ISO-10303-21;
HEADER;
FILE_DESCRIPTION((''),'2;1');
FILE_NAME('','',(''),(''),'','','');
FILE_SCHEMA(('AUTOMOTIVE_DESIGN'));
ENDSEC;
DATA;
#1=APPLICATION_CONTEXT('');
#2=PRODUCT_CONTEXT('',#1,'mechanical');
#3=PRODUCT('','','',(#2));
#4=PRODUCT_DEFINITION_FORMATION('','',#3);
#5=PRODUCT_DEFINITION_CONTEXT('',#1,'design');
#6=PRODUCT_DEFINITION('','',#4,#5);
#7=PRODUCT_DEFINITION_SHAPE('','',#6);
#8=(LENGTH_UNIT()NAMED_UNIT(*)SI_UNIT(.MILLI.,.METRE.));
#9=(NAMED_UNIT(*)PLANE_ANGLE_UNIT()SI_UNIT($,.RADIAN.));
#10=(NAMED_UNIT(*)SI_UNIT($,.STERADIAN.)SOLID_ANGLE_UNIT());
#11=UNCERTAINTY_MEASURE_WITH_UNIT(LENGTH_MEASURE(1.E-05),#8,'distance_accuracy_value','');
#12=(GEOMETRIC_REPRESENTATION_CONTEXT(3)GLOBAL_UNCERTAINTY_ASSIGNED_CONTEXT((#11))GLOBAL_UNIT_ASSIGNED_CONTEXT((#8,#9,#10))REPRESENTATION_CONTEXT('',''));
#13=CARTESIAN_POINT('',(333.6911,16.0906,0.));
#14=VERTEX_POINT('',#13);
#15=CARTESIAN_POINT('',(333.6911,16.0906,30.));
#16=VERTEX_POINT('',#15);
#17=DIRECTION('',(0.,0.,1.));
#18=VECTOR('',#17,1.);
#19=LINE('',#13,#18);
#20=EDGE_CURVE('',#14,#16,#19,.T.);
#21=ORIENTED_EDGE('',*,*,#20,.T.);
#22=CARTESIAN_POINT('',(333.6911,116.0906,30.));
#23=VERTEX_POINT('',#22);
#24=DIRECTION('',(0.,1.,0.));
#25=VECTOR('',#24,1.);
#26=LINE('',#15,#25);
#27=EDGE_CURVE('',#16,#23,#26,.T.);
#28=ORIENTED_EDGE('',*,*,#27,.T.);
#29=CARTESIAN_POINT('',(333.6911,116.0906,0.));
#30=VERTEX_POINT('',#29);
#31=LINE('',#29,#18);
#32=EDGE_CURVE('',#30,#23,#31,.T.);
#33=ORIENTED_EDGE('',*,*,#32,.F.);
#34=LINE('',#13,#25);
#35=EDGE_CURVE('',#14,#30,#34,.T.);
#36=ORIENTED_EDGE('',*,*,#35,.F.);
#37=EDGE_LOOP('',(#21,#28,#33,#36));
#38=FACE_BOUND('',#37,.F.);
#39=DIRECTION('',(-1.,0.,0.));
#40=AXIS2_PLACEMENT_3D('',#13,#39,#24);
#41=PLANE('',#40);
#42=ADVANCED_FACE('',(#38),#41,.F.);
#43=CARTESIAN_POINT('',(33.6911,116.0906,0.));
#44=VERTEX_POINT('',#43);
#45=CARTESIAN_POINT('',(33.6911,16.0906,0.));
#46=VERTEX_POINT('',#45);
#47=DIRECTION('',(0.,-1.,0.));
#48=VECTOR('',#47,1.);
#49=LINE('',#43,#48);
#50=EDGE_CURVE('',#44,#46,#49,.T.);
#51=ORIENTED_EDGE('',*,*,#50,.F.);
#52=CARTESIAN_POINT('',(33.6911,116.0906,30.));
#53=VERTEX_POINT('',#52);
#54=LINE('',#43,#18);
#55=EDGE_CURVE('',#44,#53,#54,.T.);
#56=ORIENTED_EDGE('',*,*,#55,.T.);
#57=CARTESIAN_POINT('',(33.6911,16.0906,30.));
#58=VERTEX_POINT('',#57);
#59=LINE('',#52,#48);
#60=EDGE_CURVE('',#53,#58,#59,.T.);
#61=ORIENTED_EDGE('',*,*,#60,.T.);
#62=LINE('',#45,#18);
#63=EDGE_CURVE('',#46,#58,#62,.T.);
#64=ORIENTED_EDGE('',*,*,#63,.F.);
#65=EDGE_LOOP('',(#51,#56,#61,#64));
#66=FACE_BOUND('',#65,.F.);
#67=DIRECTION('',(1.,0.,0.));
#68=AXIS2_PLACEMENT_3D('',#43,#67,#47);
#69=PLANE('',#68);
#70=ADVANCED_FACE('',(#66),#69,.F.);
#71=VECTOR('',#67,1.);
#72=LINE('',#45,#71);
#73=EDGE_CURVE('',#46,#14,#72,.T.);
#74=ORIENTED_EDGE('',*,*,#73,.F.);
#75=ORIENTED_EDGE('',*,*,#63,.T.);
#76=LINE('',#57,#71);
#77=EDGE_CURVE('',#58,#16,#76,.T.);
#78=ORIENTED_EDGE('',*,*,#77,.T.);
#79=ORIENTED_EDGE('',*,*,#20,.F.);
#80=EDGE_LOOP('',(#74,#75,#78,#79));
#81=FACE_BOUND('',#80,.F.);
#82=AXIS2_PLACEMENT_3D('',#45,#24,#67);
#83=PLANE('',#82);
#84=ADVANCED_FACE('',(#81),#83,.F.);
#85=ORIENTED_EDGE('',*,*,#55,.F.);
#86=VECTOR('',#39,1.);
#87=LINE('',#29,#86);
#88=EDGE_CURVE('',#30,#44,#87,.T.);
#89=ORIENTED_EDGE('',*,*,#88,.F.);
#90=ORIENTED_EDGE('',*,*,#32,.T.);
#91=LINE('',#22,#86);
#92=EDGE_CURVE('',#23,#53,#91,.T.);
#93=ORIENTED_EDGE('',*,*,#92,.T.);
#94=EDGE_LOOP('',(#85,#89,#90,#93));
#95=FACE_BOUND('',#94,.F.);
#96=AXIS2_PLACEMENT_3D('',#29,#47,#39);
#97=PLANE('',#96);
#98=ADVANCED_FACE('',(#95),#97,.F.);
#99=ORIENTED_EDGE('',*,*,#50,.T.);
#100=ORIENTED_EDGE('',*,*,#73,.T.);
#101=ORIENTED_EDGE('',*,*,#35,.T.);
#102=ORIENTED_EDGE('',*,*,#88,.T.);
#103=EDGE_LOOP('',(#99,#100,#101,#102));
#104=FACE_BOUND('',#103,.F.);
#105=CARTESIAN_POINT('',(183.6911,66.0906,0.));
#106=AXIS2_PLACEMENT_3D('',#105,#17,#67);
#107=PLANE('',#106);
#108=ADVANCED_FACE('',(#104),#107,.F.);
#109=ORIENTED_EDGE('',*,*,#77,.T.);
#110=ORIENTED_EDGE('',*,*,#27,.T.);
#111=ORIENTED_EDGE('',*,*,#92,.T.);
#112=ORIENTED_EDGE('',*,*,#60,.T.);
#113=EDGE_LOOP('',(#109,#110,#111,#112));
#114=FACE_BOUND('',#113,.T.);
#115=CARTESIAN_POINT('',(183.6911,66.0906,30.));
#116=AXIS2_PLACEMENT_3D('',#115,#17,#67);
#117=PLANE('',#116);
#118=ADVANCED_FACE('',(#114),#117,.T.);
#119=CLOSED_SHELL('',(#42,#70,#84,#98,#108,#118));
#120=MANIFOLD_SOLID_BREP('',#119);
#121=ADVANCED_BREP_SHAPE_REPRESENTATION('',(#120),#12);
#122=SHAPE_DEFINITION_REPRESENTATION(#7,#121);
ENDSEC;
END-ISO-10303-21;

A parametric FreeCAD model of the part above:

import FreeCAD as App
import Part
import Sketcher


def add_polygon(sketch, points):
    """Adds a closed chain of lines whose ends are joined by coincident constraints."""
    first, n = sketch.GeometryCount, len(points)
    for a, b in zip(points, points[1:] + points[:1]):
        sketch.addGeometry(Part.LineSegment(App.Vector(*a, 0), App.Vector(*b, 0)), False)
    for i in range(n):
        sketch.addConstraint(Sketcher.Constraint("Coincident", first + i, 2, first + (i + 1) % n, 1))

doc = App.newDocument("Part")
body = doc.addObject("PartDesign::Body", "Body")

sketch1 = body.newObject("Sketcher::SketchObject", "Sketch")
sketch1.AttachmentSupport = (doc.getObject("XY_Plane"), [""])
sketch1.MapMode = "FlatFace"
add_polygon(sketch1, [(34, 116), (34, 16), (334, 16), (334, 116)])
sketch1.addConstraint([
    Sketcher.Constraint("Vertical", 0),
    Sketcher.Constraint("Horizontal", 1),
    Sketcher.Constraint("Vertical", 2),
    Sketcher.Constraint("Horizontal", 3),
    Sketcher.Constraint("DistanceX", 1, 1, 1, 2, 300.0),
    Sketcher.Constraint("DistanceY", 0, 2, 0, 1, 100.0),
    Sketcher.Constraint("DistanceX", -1, 1, 0, 2, 33.691),
    Sketcher.Constraint("DistanceY", -1, 1, 0, 2, 16.0906),
])
pad1 = body.newObject("PartDesign::Pad", "Pad")
pad1.Profile = sketch1
pad1.Length = 30

doc.recompute()
